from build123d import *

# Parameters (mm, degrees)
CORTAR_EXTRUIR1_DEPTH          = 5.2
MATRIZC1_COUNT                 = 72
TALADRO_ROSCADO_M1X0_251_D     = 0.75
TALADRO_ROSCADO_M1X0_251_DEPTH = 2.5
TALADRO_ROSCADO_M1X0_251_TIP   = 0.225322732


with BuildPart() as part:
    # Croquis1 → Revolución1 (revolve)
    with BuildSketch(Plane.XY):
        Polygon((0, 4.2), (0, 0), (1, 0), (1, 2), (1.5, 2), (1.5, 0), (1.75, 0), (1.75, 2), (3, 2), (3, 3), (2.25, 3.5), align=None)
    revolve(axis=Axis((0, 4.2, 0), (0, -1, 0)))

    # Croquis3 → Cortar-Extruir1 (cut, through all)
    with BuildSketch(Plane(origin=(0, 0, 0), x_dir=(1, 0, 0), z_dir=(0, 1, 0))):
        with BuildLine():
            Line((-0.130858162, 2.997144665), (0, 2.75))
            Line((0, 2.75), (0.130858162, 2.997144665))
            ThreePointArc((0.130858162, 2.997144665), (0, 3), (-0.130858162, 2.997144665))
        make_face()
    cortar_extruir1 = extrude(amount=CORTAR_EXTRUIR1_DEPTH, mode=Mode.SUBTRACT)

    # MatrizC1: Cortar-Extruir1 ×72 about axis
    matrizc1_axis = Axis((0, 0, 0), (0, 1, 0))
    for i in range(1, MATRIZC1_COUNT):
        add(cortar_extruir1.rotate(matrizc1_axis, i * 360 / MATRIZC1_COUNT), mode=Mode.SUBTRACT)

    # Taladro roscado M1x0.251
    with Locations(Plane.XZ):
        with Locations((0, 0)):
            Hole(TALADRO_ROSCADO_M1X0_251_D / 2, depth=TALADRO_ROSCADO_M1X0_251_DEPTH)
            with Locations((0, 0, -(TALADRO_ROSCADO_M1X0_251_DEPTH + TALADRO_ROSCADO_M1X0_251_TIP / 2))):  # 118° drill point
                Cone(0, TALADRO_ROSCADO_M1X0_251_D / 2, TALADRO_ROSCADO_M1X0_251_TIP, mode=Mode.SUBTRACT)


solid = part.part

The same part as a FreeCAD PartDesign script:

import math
import FreeCAD as App
import Part
import Sketcher

V = App.Vector

doc = App.newDocument("Part")
body = doc.addObject("PartDesign::Body", "Body")

sketch1 = body.newObject("Sketcher::SketchObject", "Sketch")
sketch1.AttachmentSupport = (doc.getObject("XY_Plane"), [""])
sketch1.MapMode = "FlatFace"
sketch1.addGeometry(Part.LineSegment(V(0, 4.2, 0), V(0, 0, 0)), False)
sketch1.addGeometry(Part.LineSegment(V(0, 0, 0), V(1, 0, 0)), False)
sketch1.addGeometry(Part.LineSegment(V(1, 0, 0), V(1, 2, 0)), False)
sketch1.addGeometry(Part.LineSegment(V(1, 2, 0), V(1.5, 2, 0)), False)
sketch1.addGeometry(Part.LineSegment(V(1.5, 2, 0), V(1.5, 0, 0)), False)
sketch1.addGeometry(Part.LineSegment(V(1.5, 0, 0), V(1.75, 0, 0)), False)
sketch1.addGeometry(Part.LineSegment(V(1.75, 0, 0), V(1.75, 2, 0)), False)
sketch1.addGeometry(Part.LineSegment(V(1.75, 2, 0), V(3, 2, 0)), False)
sketch1.addGeometry(Part.LineSegment(V(3, 2, 0), V(3, 3, 0)), False)
sketch1.addGeometry(Part.LineSegment(V(3, 3, 0), V(2.25, 3.5, 0)), False)
sketch1.addGeometry(Part.LineSegment(V(2.25, 3.5, 0), V(0, 4.2, 0)), False)
sketch1.addConstraint(Sketcher.Constraint("Coincident", 0, 2, 1, 1))
sketch1.addConstraint(Sketcher.Constraint("Coincident", 1, 2, 2, 1))
sketch1.addConstraint(Sketcher.Constraint("Coincident", 2, 2, 3, 1))
sketch1.addConstraint(Sketcher.Constraint("Coincident", 3, 2, 4, 1))
sketch1.addConstraint(Sketcher.Constraint("Coincident", 4, 2, 5, 1))
sketch1.addConstraint(Sketcher.Constraint("Coincident", 5, 2, 6, 1))
sketch1.addConstraint(Sketcher.Constraint("Coincident", 6, 2, 7, 1))
sketch1.addConstraint(Sketcher.Constraint("Coincident", 7, 2, 8, 1))
sketch1.addConstraint(Sketcher.Constraint("Coincident", 8, 2, 9, 1))
sketch1.addConstraint(Sketcher.Constraint("Coincident", 9, 2, 10, 1))
sketch1.addConstraint(Sketcher.Constraint("Coincident", 10, 2, 0, 1))
sketch1.addConstraint(Sketcher.Constraint("Vertical", 0))
sketch1.addConstraint(Sketcher.Constraint("Horizontal", 1))
sketch1.addConstraint(Sketcher.Constraint("Vertical", 2))
sketch1.addConstraint(Sketcher.Constraint("Horizontal", 3))
sketch1.addConstraint(Sketcher.Constraint("Vertical", 4))
sketch1.addConstraint(Sketcher.Constraint("Horizontal", 5))
sketch1.addConstraint(Sketcher.Constraint("Vertical", 6))
sketch1.addConstraint(Sketcher.Constraint("Horizontal", 7))
sketch1.addConstraint(Sketcher.Constraint("Vertical", 8))
sketch1.addConstraint(Sketcher.Constraint("Coincident", 0, 2, -1, 1))
sketch1.addConstraint(Sketcher.Constraint("PointOnObject", 4, 2, -1))
sketch1.addConstraint(Sketcher.Constraint("Horizontal", 3, 2, 6, 2))
sketch1.addConstraint(Sketcher.Constraint("Equal", 1, 8))
sketch1.addConstraint(Sketcher.Constraint("DistanceX", 1, 1, 1, 2, 1.0))
sketch1.addConstraint(Sketcher.Constraint("DistanceY", 2, 1, 2, 2, 2.0))
sketch1.addConstraint(Sketcher.Constraint("DistanceX", 3, 1, 3, 2, 0.5))
sketch1.addConstraint(Sketcher.Constraint("DistanceY", 0, 2, 0, 1, 4.2))
sketch1.addConstraint(Sketcher.Constraint("DistanceX", -1, 1, 7, 2, 3.0))
sketch1.addConstraint(Sketcher.Constraint("DistanceX", 5, 1, 5, 2, 0.25))
sketch1.addConstraint(Sketcher.Constraint("DistanceY", -1, 1, 9, 2, 3.5))
sketch1.addConstraint(Sketcher.Constraint("DistanceX", 6, 2, 9, 2, 0.5))
revolution = body.newObject("PartDesign::Revolution", "Revolution")
revolution.Profile = sketch1
revolution.ReferenceAxis = (sketch1, ["V_Axis"])
revolution.Angle = 360

sketch2 = body.newObject("Sketcher::SketchObject", "Sketch001")
sketch2.AttachmentSupport = (doc.getObject("XZ_Plane"), [""])
sketch2.MapMode = "FlatFace"
sketch2.addGeometry(Part.LineSegment(V(-0.13, -3, 0), V(0, -2.75, 0)), False)
sketch2.addGeometry(Part.LineSegment(V(0, -2.75, 0), V(0.13, -3, 0)), False)
sketch2.addGeometry(Part.ArcOfCircle(Part.Circle(V(0, 0, 0), V(0, 0, 1), 3), math.radians(-92.5), math.radians(-87.5)), False)
sketch2.addConstraint(Sketcher.Constraint("Coincident", 0, 2, 1, 1))
sketch2.addConstraint(Sketcher.Constraint("Coincident", 1, 2, 2, 2))
sketch2.addConstraint(Sketcher.Constraint("Coincident", 2, 1, 0, 1))
sketch2.addConstraint(Sketcher.Constraint("Coincident", 2, 3, -1, 1))
sketch2.addConstraint(Sketcher.Constraint("PointOnObject", 0, 2, -2))
sketch2.addConstraint(Sketcher.Constraint("Horizontal", 1, 2, 2, 1))
sketch2.addConstraint(Sketcher.Constraint("Radius", 2, 3.0))
sketch2.addConstraint(Sketcher.Constraint("DistanceY", 0, 2, -1, 1, 2.75))
sketch2.addConstraint(Sketcher.Constraint("Distance", 0, 0.27965))
pocket1 = body.newObject("PartDesign::Pocket", "Pocket")
pocket1.Profile = sketch2
pocket1.Type = "ThroughAll"
doc.recompute()

polarpattern = body.newObject("PartDesign::PolarPattern", "PolarPattern")
polarpattern.Originals = [pocket1]
polarpattern.Axis = (doc.getObject("Y_Axis"), [""])
polarpattern.Angle = 360
polarpattern.Occurrences = 72
body.Tip = polarpattern

sketch3 = body.newObject("Sketcher::SketchObject", "Sketch002")
sketch3.AttachmentSupport = (doc.getObject("XZ_Plane"), [""])
sketch3.MapMode = "FlatFace"
sketch3.addGeometry(Part.Circle(V(0, 0, 0), V(0, 0, 1), 0.38), False)
sketch3.addConstraint(Sketcher.Constraint("Coincident", 0, 3, -1, 1))
sketch3.addConstraint(Sketcher.Constraint("Diameter", 0, 0.75))
doc.recompute()
hole = body.newObject("PartDesign::Hole", "Hole")
hole.Profile = sketch3
hole.ThreadType = "None"
hole.Diameter = 0.75
hole.DepthType = "Dimension"
hole.Depth = 2.5
hole.DrillPoint = "Angled"
hole.DrillPointAngle = 118

doc.recompute()
